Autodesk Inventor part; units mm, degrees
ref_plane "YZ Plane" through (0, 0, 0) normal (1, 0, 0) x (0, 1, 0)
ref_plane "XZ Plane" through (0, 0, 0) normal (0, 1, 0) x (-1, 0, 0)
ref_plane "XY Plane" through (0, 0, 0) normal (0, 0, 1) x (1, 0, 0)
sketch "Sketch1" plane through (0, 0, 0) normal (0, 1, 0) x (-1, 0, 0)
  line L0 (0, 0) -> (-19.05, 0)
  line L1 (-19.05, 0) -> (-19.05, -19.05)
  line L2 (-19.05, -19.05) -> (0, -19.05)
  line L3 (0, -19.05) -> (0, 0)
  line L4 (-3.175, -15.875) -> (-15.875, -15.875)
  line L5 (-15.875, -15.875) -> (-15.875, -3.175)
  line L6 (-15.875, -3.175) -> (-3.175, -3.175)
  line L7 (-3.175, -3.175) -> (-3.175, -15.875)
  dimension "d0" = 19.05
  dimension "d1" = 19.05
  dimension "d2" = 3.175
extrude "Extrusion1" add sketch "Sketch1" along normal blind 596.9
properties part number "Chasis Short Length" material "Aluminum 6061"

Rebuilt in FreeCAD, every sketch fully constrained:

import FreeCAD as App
import Part
import Sketcher

V = App.Vector
Q = App.Units.Quantity

doc = App.newDocument("Part")
body = doc.addObject("PartDesign::Body", "Body")

sketch1 = body.newObject("Sketcher::SketchObject", "Sketch")
sketch1.AttachmentSupport = (doc.getObject("XZ_Plane"), [""])
sketch1.MapMode = "FlatFace"
sketch1.addGeometry([
    Part.LineSegment(V(0, -19.05, 0), V(0, 0, 0)),
    Part.LineSegment(V(0, 0, 0), V(19.05, 0, 0)),
    Part.LineSegment(V(19.05, 0, 0), V(19.05, -19.05, 0)),
    Part.LineSegment(V(19.05, -19.05, 0), V(0, -19.05, 0)),
    Part.LineSegment(V(3.175, -3.175, 0), V(3.175, -15.875, 0)),
    Part.LineSegment(V(3.175, -15.875, 0), V(15.875, -15.875, 0)),
    Part.LineSegment(V(15.875, -15.875, 0), V(15.875, -3.175, 0)),
    Part.LineSegment(V(15.875, -3.175, 0), V(3.175, -3.175, 0)),
], False)
sketch1.addConstraint([
    Sketcher.Constraint("Coincident", 0, 2, 1, 1),
    Sketcher.Constraint("Coincident", 1, 2, 2, 1),
    Sketcher.Constraint("Coincident", 2, 2, 3, 1),
    Sketcher.Constraint("Coincident", 3, 2, 0, 1),
    Sketcher.Constraint("Coincident", 4, 2, 5, 1),
    Sketcher.Constraint("Coincident", 5, 2, 6, 1),
    Sketcher.Constraint("Coincident", 6, 2, 7, 1),
    Sketcher.Constraint("Coincident", 7, 2, 4, 1),
    Sketcher.Constraint("Vertical", 0),
    Sketcher.Constraint("Horizontal", 1),
    Sketcher.Constraint("Vertical", 2),
    Sketcher.Constraint("Horizontal", 3),
    Sketcher.Constraint("Vertical", 4),
    Sketcher.Constraint("Horizontal", 5),
    Sketcher.Constraint("Vertical", 6),
    Sketcher.Constraint("Horizontal", 7),
    Sketcher.Constraint("Coincident", 0, 2, -1, 1),
    Sketcher.Constraint("Equal", 3, 0),
    Sketcher.Constraint("Equal", 7, 4),
    Sketcher.Constraint("DistanceX", 1, 1, 1, 2, Q("0.75 in")),
    Sketcher.Constraint("DistanceX", 5, 1, 5, 2, Q("0.5 in")),
    Sketcher.Constraint("DistanceX", -1, 1, 4, 2, Q("0.125 in")),
    Sketcher.Constraint("DistanceY", 6, 2, -1, 1, Q("0.125 in")),
])
pad1 = body.newObject("PartDesign::Pad", "Pad")
pad1.Profile = sketch1
pad1.Length = Q("23.5 in")
pad1.Reversed = True

doc.recompute()
